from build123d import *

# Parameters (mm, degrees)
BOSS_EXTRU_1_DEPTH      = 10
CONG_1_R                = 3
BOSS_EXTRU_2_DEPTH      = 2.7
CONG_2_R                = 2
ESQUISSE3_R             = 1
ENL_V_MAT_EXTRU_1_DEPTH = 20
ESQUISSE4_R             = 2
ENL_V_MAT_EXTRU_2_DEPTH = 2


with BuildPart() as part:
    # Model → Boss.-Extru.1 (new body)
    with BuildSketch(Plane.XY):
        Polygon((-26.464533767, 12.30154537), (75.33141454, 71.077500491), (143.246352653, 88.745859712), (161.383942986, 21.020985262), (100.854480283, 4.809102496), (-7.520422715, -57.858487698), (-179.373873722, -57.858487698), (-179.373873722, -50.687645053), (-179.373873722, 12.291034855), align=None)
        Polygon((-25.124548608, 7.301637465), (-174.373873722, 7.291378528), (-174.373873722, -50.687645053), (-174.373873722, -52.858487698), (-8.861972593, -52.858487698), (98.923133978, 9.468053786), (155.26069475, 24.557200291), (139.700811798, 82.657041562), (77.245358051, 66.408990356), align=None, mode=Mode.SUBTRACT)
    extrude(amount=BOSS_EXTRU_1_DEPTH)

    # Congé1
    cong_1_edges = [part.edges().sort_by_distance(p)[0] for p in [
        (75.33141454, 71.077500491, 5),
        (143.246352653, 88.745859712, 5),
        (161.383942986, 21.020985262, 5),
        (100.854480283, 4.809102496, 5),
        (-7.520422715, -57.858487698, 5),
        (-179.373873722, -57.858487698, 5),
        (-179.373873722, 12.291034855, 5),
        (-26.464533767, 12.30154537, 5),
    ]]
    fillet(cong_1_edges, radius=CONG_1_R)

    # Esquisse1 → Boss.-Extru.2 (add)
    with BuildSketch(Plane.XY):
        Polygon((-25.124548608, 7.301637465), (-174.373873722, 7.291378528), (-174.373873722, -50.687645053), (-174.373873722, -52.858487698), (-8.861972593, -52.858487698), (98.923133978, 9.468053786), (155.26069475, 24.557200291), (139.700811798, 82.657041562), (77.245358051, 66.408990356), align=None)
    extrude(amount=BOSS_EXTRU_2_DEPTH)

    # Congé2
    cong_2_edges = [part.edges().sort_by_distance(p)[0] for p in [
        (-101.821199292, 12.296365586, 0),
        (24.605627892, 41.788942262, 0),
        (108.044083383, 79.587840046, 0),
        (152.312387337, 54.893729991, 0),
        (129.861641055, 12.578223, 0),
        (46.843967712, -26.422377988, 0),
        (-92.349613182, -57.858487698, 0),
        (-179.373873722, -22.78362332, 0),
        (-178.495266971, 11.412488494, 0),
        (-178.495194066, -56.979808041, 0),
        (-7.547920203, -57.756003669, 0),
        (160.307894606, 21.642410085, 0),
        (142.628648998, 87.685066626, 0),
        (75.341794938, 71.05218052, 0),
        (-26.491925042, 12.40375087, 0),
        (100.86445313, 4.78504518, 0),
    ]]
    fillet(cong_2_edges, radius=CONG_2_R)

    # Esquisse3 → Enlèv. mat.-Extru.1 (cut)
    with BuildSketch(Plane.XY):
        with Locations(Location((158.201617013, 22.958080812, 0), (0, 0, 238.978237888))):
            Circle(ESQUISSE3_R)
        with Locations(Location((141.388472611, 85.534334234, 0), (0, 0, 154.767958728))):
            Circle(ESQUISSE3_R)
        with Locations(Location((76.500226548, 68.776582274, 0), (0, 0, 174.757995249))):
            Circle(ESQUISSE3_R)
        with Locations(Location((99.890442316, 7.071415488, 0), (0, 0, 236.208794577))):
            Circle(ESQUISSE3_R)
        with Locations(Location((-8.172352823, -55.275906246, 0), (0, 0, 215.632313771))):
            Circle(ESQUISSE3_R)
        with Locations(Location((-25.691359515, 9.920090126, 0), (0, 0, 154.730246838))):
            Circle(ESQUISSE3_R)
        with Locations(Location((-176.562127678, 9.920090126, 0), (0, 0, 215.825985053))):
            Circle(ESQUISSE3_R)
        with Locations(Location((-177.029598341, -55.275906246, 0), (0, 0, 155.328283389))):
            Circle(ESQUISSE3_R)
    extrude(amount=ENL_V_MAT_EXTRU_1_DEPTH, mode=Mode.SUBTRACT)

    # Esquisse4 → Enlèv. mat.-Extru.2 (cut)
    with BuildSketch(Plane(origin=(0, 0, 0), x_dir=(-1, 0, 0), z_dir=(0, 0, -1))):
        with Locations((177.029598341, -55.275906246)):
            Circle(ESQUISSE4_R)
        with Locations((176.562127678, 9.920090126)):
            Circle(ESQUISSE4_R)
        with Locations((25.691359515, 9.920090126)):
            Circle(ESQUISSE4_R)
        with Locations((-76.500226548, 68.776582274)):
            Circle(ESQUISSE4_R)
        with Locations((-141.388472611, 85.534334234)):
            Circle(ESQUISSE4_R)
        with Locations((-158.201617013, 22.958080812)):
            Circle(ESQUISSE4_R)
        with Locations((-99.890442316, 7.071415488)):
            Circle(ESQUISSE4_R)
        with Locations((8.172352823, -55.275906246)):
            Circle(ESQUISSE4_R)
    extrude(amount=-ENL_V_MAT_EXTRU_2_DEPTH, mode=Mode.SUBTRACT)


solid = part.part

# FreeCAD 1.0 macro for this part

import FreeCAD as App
import Part
import Sketcher
from FreeCAD import Vector
Q = App.Units.Quantity


def edges_at(feature, points):
    """Names of the edges that pass closest to the given points."""
    edges = feature.Shape.Edges
    near = lambda p: min(range(len(edges)), key=lambda i: edges[i].distToShape(Part.Vertex(*p))[0])
    return sorted({f"Edge{near(p) + 1}" for p in points})

doc = App.newDocument("Part")
params = doc.addObject("Spreadsheet::Sheet", "Params")
for row, (alias, value) in enumerate([
    ("pad1_length", "10 mm"),
    ("fillet_radius", "3 mm"),
    ("pad2_length", "2.7 mm"),
    ("fillet2_radius", "2 mm"),
    ("sketch3_diameter", "2 mm"),
    ("pocket1_length", "20 mm"),
    ("sketch4_diameter", "4 mm"),
    ("pocket2_length", "2 mm"),
], start=1):
    params.set(f"A{row}", alias)
    params.set(f"B{row}", "=" + value)
    params.setAlias(f"B{row}", alias)

body = doc.addObject("PartDesign::Body", "Body")

# Sketch on XY plane
sketch1 = doc.addObject("Sketcher::SketchObject", "Sketch")
body.addObject(sketch1)
sketch1.AttachmentSupport = (doc.XY_Plane, [""])
sketch1.MapMode = "FlatFace"
sketch1.addGeometry(Part.LineSegment(Vector(75, 71, 0), Vector(-26, 12, 0)), False)
sketch1.addGeometry(Part.LineSegment(Vector(-26, 12, 0), Vector(-179, 12, 0)), False)
sketch1.addGeometry(Part.LineSegment(Vector(-179, 12, 0), Vector(-179, -58, 0)), False)
sketch1.addGeometry(Part.LineSegment(Vector(-179, -58, 0), Vector(-8, -58, 0)), False)
sketch1.addGeometry(Part.LineSegment(Vector(-8, -58, 0), Vector(101, 5, 0)), False)
sketch1.addGeometry(Part.LineSegment(Vector(101, 5, 0), Vector(161, 21, 0)), False)
sketch1.addGeometry(Part.LineSegment(Vector(161, 21, 0), Vector(143, 89, 0)), False)
sketch1.addGeometry(Part.LineSegment(Vector(143, 89, 0), Vector(75, 71, 0)), False)
sketch1.addGeometry(Part.LineSegment(Vector(-25, 7, 0), Vector(77, 66, 0)), False)
sketch1.addGeometry(Part.LineSegment(Vector(77, 66, 0), Vector(140, 83, 0)), False)
sketch1.addGeometry(Part.LineSegment(Vector(140, 83, 0), Vector(155, 25, 0)), False)
sketch1.addGeometry(Part.LineSegment(Vector(155, 25, 0), Vector(99, 9, 0)), False)
sketch1.addGeometry(Part.LineSegment(Vector(99, 9, 0), Vector(-9, -53, 0)), False)
sketch1.addGeometry(Part.LineSegment(Vector(-9, -53, 0), Vector(-174, -53, 0)), False)
sketch1.addGeometry(Part.LineSegment(Vector(-174, -53, 0), Vector(-174, 7, 0)), False)
sketch1.addGeometry(Part.LineSegment(Vector(-174, 7, 0), Vector(-25, 7, 0)), False)
sketch1.addConstraint(Sketcher.Constraint("Coincident", 0, 2, 1, 1))
sketch1.addConstraint(Sketcher.Constraint("Coincident", 1, 2, 2, 1))
sketch1.addConstraint(Sketcher.Constraint("Coincident", 2, 2, 3, 1))
sketch1.addConstraint(Sketcher.Constraint("Coincident", 3, 2, 4, 1))
sketch1.addConstraint(Sketcher.Constraint("Coincident", 4, 2, 5, 1))
sketch1.addConstraint(Sketcher.Constraint("Coincident", 5, 2, 6, 1))
sketch1.addConstraint(Sketcher.Constraint("Coincident", 6, 2, 7, 1))
sketch1.addConstraint(Sketcher.Constraint("Coincident", 7, 2, 0, 1))
sketch1.addConstraint(Sketcher.Constraint("Coincident", 8, 2, 9, 1))
sketch1.addConstraint(Sketcher.Constraint("Coincident", 9, 2, 10, 1))
sketch1.addConstraint(Sketcher.Constraint("Coincident", 10, 2, 11, 1))
sketch1.addConstraint(Sketcher.Constraint("Coincident", 11, 2, 12, 1))
sketch1.addConstraint(Sketcher.Constraint("Coincident", 12, 2, 13, 1))
sketch1.addConstraint(Sketcher.Constraint("Coincident", 13, 2, 14, 1))
sketch1.addConstraint(Sketcher.Constraint("Coincident", 14, 2, 15, 1))
sketch1.addConstraint(Sketcher.Constraint("Coincident", 15, 2, 8, 1))
sketch1.addConstraint(Sketcher.Constraint("Vertical", 2))
sketch1.addConstraint(Sketcher.Constraint("Horizontal", 3))
sketch1.addConstraint(Sketcher.Constraint("Horizontal", 13))
sketch1.addConstraint(Sketcher.Constraint("Vertical", 14))
sketch1.addConstraint(Sketcher.Constraint("Parallel", 0, 8))
sketch1.addConstraint(Sketcher.Constraint("Parallel", 7, 9))
sketch1.addConstraint(Sketcher.Constraint("Parallel", 6, 10))
sketch1.addConstraint(Sketcher.Constraint("Parallel", 5, 11))
sketch1.addConstraint(Sketcher.Constraint("Parallel", 4, 12))
sketch1.addConstraint(Sketcher.Constraint("Parallel", 1, 15))
sketch1.addConstraint(Sketcher.Constraint("DistanceY", 3, 2, 12, 2, Q("5 mm")))
sketch1.addConstraint(Sketcher.Constraint("DistanceX", 2, 2, 13, 2, Q("5 mm")))
sketch1.addConstraint(Sketcher.Constraint("DistanceX", 13, 2, 13, 1, Q("165.511901 mm")))
sketch1.addConstraint(Sketcher.Constraint("DistanceX", 3, 1, 3, 2, Q("171.853451 mm")))
sketch1.addConstraint(Sketcher.Constraint("DistanceY", -1, 1, 7, 2, Q("71.0775 mm")))
sketch1.addConstraint(Sketcher.Constraint("DistanceY", -1, 1, 10, 2, Q("24.5572 mm")))
sketch1.addConstraint(Sketcher.Constraint("Distance", 1, Q("152.90934 mm")))
sketch1.addConstraint(Sketcher.Constraint("Distance", 6, Q("70.11156 mm")))
sketch1.addConstraint(Sketcher.Constraint("Distance", 10, Q("60.147332 mm")))
sketch1.addConstraint(Sketcher.Constraint("Distance", 12, Q("124.507939 mm")))
sketch1.addConstraint(Sketcher.Constraint("DistanceY", 2, 2, 2, 1, Q("70.149523 mm")))
sketch1.addConstraint(Sketcher.Constraint("DistanceY", 14, 1, 14, 2, Q("60.149866 mm")))
sketch1.addConstraint(Sketcher.Constraint("DistanceX", -1, 1, 4, 2, Q("100.85448 mm")))
sketch1.addConstraint(Sketcher.Constraint("DistanceY", -1, 1, 6, 2, Q("88.74586 mm")))
sketch1.addConstraint(Sketcher.Constraint("DistanceX", -1, 1, 8, 2, Q("77.245358 mm")))
sketch1.addConstraint(Sketcher.Constraint("DistanceY", -1, 1, 8, 2, Q("66.40899 mm")))
sketch1.addConstraint(Sketcher.Constraint("DistanceX", -1, 1, 9, 2, Q("139.700812 mm")))
sketch1.addConstraint(Sketcher.Constraint("DistanceY", -1, 1, 9, 2, Q("82.657042 mm")))
sketch1.addConstraint(Sketcher.Constraint("DistanceY", -1, 1, 14, 2, Q("7.291379 mm")))
sketch1.addConstraint(Sketcher.Constraint("DistanceX", 15, 2, -1, 1, Q("25.124549 mm")))
sketch1.addConstraint(Sketcher.Constraint("DistanceY", 1, 2, 0, 2, Q("0.010511 mm")))
sketch1.addConstraint(Sketcher.Constraint("DistanceY", 3, 2, 4, 2, Q("62.66759 mm")))
pad1 = doc.addObject("PartDesign::Pad", "Pad")
body.addObject(pad1)
pad1.Profile = sketch1
pad1.setExpression("Length", "Params.pad1_length")
doc.recompute()

fillet = doc.addObject("PartDesign::Fillet", "Fillet")
body.addObject(fillet)
fillet.Base = (pad1, edges_at(pad1, [
    (75.331, 71.078, 5),
    (143.246, 88.746, 5),
    (161.384, 21.021, 5),
    (100.854, 4.809, 5),
    (-7.52, -57.858, 5),
    (-179.374, -57.858, 5),
    (-179.374, 12.291, 5),
    (-26.465, 12.302, 5),
]))
fillet.setExpression("Radius", "Params.fillet_radius")

# Sketch on XY plane
sketch2 = doc.addObject("Sketcher::SketchObject", "Sketch001")
body.addObject(sketch2)
sketch2.AttachmentSupport = (doc.XY_Plane, [""])
sketch2.MapMode = "FlatFace"
sketch2.addGeometry(Part.LineSegment(Vector(-25, 7, 0), Vector(-174, 7, 0)), False)
sketch2.addGeometry(Part.LineSegment(Vector(-174, 7, 0), Vector(-174, -53, 0)), False)
sketch2.addGeometry(Part.LineSegment(Vector(-174, -53, 0), Vector(-9, -53, 0)), False)
sketch2.addGeometry(Part.LineSegment(Vector(-9, -53, 0), Vector(99, 9, 0)), False)
sketch2.addGeometry(Part.LineSegment(Vector(99, 9, 0), Vector(155, 25, 0)), False)
sketch2.addGeometry(Part.LineSegment(Vector(155, 25, 0), Vector(140, 83, 0)), False)
sketch2.addGeometry(Part.LineSegment(Vector(140, 83, 0), Vector(77, 66, 0)), False)
sketch2.addGeometry(Part.LineSegment(Vector(77, 66, 0), Vector(-25, 7, 0)), False)
sketch2.addConstraint(Sketcher.Constraint("Coincident", 0, 2, 1, 1))
sketch2.addConstraint(Sketcher.Constraint("Coincident", 1, 2, 2, 1))
sketch2.addConstraint(Sketcher.Constraint("Coincident", 2, 2, 3, 1))
sketch2.addConstraint(Sketcher.Constraint("Coincident", 3, 2, 4, 1))
sketch2.addConstraint(Sketcher.Constraint("Coincident", 4, 2, 5, 1))
sketch2.addConstraint(Sketcher.Constraint("Coincident", 5, 2, 6, 1))
sketch2.addConstraint(Sketcher.Constraint("Coincident", 6, 2, 7, 1))
sketch2.addConstraint(Sketcher.Constraint("Coincident", 7, 2, 0, 1))
sketch2.addConstraint(Sketcher.Constraint("Vertical", 1))
sketch2.addConstraint(Sketcher.Constraint("Horizontal", 2))
sketch2.addConstraint(Sketcher.Constraint("DistanceX", 2, 1, 2, 2, Q("165.511901 mm")))
sketch2.addConstraint(Sketcher.Constraint("DistanceY", -1, 1, 4, 2, Q("24.5572 mm")))
sketch2.addConstraint(Sketcher.Constraint("Distance", 3, Q("124.507939 mm")))
sketch2.addConstraint(Sketcher.Constraint("Distance", 5, Q("60.147332 mm")))
sketch2.addConstraint(Sketcher.Constraint("DistanceY", 1, 2, 1, 1, Q("60.149866 mm")))
sketch2.addConstraint(Sketcher.Constraint("DistanceY", -1, 1, 0, 2, Q("7.291379 mm")))
sketch2.addConstraint(Sketcher.Constraint("DistanceX", -1, 1, 5, 2, Q("139.700812 mm")))
sketch2.addConstraint(Sketcher.Constraint("DistanceY", -1, 1, 5, 2, Q("82.657042 mm")))
sketch2.addConstraint(Sketcher.Constraint("DistanceX", -1, 1, 6, 2, Q("77.245358 mm")))
sketch2.addConstraint(Sketcher.Constraint("DistanceY", -1, 1, 6, 2, Q("66.40899 mm")))
sketch2.addConstraint(Sketcher.Constraint("DistanceX", 7, 2, -1, 1, Q("25.124549 mm")))
sketch2.addConstraint(Sketcher.Constraint("DistanceY", 2, 2, 3, 2, Q("62.326541 mm")))
sketch2.addConstraint(Sketcher.Constraint("DistanceX", 3, 2, 4, 2, Q("56.337561 mm")))
sketch2.addConstraint(Sketcher.Constraint("DistanceY", 0, 2, 7, 2, Q("0.010259 mm")))
pad2 = doc.addObject("PartDesign::Pad", "Pad001")
body.addObject(pad2)
pad2.Profile = sketch2
pad2.setExpression("Length", "Params.pad2_length")
doc.recompute()

fillet2 = doc.addObject("PartDesign::Fillet", "Fillet001")
body.addObject(fillet2)
fillet2.Base = (pad2, edges_at(pad2, [
    (-101.821, 12.296, 0),
    (24.606, 41.789, 0),
    (108.044, 79.588, 0),
    (152.312, 54.894, 0),
    (129.862, 12.578, 0),
    (46.844, -26.422, 0),
    (-92.35, -57.858, 0),
    (-179.374, -22.784, 0),
    (-178.495, 11.412, 0),
    (-178.495, -56.98, 0),
    (-7.548, -57.756, 0),
    (160.308, 21.642, 0),
    (142.629, 87.685, 0),
    (75.342, 71.052, 0),
    (-26.492, 12.404, 0),
    (100.864, 4.785, 0),
]))
fillet2.setExpression("Radius", "Params.fillet2_radius")

# Sketch on XY plane
sketch3 = doc.addObject("Sketcher::SketchObject", "Sketch002")
body.addObject(sketch3)
sketch3.AttachmentSupport = (doc.XY_Plane, [""])
sketch3.MapMode = "FlatFace"
sketch3.addGeometry(Part.Circle(Vector(158.2, 23, 0), Vector(0, 0, 1), 1), False)
sketch3.addGeometry(Part.Circle(Vector(141.4, 85.5, 0), Vector(0, 0, 1), 1), False)
sketch3.addGeometry(Part.Circle(Vector(76.5, 68.8, 0), Vector(0, 0, 1), 1), False)
sketch3.addGeometry(Part.Circle(Vector(99.9, 7.1, 0), Vector(0, 0, 1), 1), False)
sketch3.addGeometry(Part.Circle(Vector(-8.2, -55.3, 0), Vector(0, 0, 1), 1), False)
sketch3.addGeometry(Part.Circle(Vector(-25.7, 9.9, 0), Vector(0, 0, 1), 1), False)
sketch3.addGeometry(Part.Circle(Vector(-176.6, 9.9, 0), Vector(0, 0, 1), 1), False)
sketch3.addGeometry(Part.Circle(Vector(-177, -55.3, 0), Vector(0, 0, 1), 1), False)
sketch3.addConstraint(Sketcher.Constraint("Equal", 0, 1))
sketch3.addConstraint(Sketcher.Constraint("Equal", 1, 2))
sketch3.addConstraint(Sketcher.Constraint("Equal", 2, 3))
sketch3.addConstraint(Sketcher.Constraint("Equal", 3, 4))
sketch3.addConstraint(Sketcher.Constraint("Equal", 4, 5))
sketch3.addConstraint(Sketcher.Constraint("Equal", 5, 6))
sketch3.addConstraint(Sketcher.Constraint("Equal", 6, 7))
sketch3.addConstraint(Sketcher.Constraint("Horizontal", 5, 3, 6, 3))
sketch3.addConstraint(Sketcher.Constraint("Horizontal", 4, 3, 7, 3))
sketch3.addConstraint(Sketcher.Constraint("Diameter", 0, Q("2 mm")))
sketch3.addConstraint(Sketcher.Constraint("DistanceX", 7, 3, -1, 1, Q("177.029598 mm")))
sketch3.addConstraint(Sketcher.Constraint("DistanceY", 0, 3, 2, 3, Q("45.818501 mm")))
sketch3.addConstraint(Sketcher.Constraint("DistanceX", 5, 3, 3, 3, Q("125.581802 mm")))
sketch3.addConstraint(Sketcher.Constraint("DistanceX", 6, 3, 1, 3, Q("317.9506 mm")))
sketch3.addConstraint(Sketcher.Constraint("DistanceY", -1, 1, 0, 3, Q("22.958081 mm")))
sketch3.addConstraint(Sketcher.Constraint("DistanceX", 5, 3, -1, 1, Q("25.69136 mm")))
sketch3.addConstraint(Sketcher.Constraint("DistanceY", -1, 1, 5, 3, Q("9.92009 mm")))
sketch3.addConstraint(Sketcher.Constraint("DistanceY", 2, 3, 1, 3, Q("16.757752 mm")))
sketch3.addConstraint(Sketcher.Constraint("DistanceX", 2, 3, 0, 3, Q("81.70139 mm")))
sketch3.addConstraint(Sketcher.Constraint("DistanceX", 3, 3, 1, 3, Q("41.49803 mm")))
sketch3.addConstraint(Sketcher.Constraint("DistanceY", 3, 3, 1, 3, Q("78.462919 mm")))
sketch3.addConstraint(Sketcher.Constraint("DistanceY", 4, 3, 3, 3, Q("62.347322 mm")))
sketch3.addConstraint(Sketcher.Constraint("DistanceX", 4, 3, 2, 3, Q("84.672579 mm")))
sketch3.addConstraint(Sketcher.Constraint("DistanceX", -1, 1, 0, 3, Q("158.201617 mm")))
sketch3.setExpression("Constraints[9]", "Params.sketch3_diameter")
pocket1 = doc.addObject("PartDesign::Pocket", "Pocket")
body.addObject(pocket1)
pocket1.Profile = sketch3
pocket1.setExpression("Length", "Params.pocket1_length")
pocket1.Reversed = True

# Sketch on XY plane
sketch4 = doc.addObject("Sketcher::SketchObject", "Sketch003")
body.addObject(sketch4)
sketch4.AttachmentSupport = (doc.XY_Plane, [""])
sketch4.MapMode = "FlatFace"
sketch4.addGeometry(Part.Circle(Vector(-177, -55.3, 0), Vector(0, 0, 1), 2), False)
sketch4.addGeometry(Part.Circle(Vector(-176.6, 9.9, 0), Vector(0, 0, 1), 2), False)
sketch4.addGeometry(Part.Circle(Vector(-25.7, 9.9, 0), Vector(0, 0, 1), 2), False)
sketch4.addGeometry(Part.Circle(Vector(76.5, 68.8, 0), Vector(0, 0, 1), 2), False)
sketch4.addGeometry(Part.Circle(Vector(141.4, 85.5, 0), Vector(0, 0, 1), 2), False)
sketch4.addGeometry(Part.Circle(Vector(158.2, 23, 0), Vector(0, 0, 1), 2), False)
sketch4.addGeometry(Part.Circle(Vector(99.9, 7.1, 0), Vector(0, 0, 1), 2), False)
sketch4.addGeometry(Part.Circle(Vector(-8.2, -55.3, 0), Vector(0, 0, 1), 2), False)
sketch4.addConstraint(Sketcher.Constraint("Equal", 0, 1))
sketch4.addConstraint(Sketcher.Constraint("Equal", 1, 2))
sketch4.addConstraint(Sketcher.Constraint("Equal", 2, 3))
sketch4.addConstraint(Sketcher.Constraint("Equal", 3, 4))
sketch4.addConstraint(Sketcher.Constraint("Equal", 4, 5))
sketch4.addConstraint(Sketcher.Constraint("Equal", 5, 6))
sketch4.addConstraint(Sketcher.Constraint("Equal", 6, 7))
sketch4.addConstraint(Sketcher.Constraint("Horizontal", 1, 3, 2, 3))
sketch4.addConstraint(Sketcher.Constraint("Horizontal", 0, 3, 7, 3))
sketch4.addConstraint(Sketcher.Constraint("Diameter", 0, Q("4 mm")))
sketch4.addConstraint(Sketcher.Constraint("DistanceX", 0, 3, -1, 1, Q("177.029598 mm")))
sketch4.addConstraint(Sketcher.Constraint("DistanceX", 1, 3, 4, 3, Q("317.9506 mm")))
sketch4.addConstraint(Sketcher.Constraint("DistanceY", 5, 3, 3, 3, Q("45.818501 mm")))
sketch4.addConstraint(Sketcher.Constraint("DistanceX", 2, 3, 6, 3, Q("125.581802 mm")))
sketch4.addConstraint(Sketcher.Constraint("DistanceY", -1, 1, 1, 3, Q("9.92009 mm")))
sketch4.addConstraint(Sketcher.Constraint("DistanceX", 2, 3, -1, 1, Q("25.69136 mm")))
sketch4.addConstraint(Sketcher.Constraint("DistanceY", -1, 1, 5, 3, Q("22.958081 mm")))
sketch4.addConstraint(Sketcher.Constraint("DistanceX", 0, 3, 1, 3, Q("0.467471 mm")))
sketch4.addConstraint(Sketcher.Constraint("DistanceY", 0, 3, 3, 3, Q("124.052489 mm")))
sketch4.addConstraint(Sketcher.Constraint("DistanceY", 3, 3, 4, 3, Q("16.757752 mm")))
sketch4.addConstraint(Sketcher.Constraint("DistanceX", 3, 3, 5, 3, Q("81.70139 mm")))
sketch4.addConstraint(Sketcher.Constraint("DistanceY", 6, 3, 4, 3, Q("78.462919 mm")))
sketch4.addConstraint(Sketcher.Constraint("DistanceX", 7, 3, 3, 3, Q("84.672579 mm")))
sketch4.addConstraint(Sketcher.Constraint("DistanceX", -1, 1, 3, 3, Q("76.500227 mm")))
sketch4.setExpression("Constraints[9]", "Params.sketch4_diameter")
pocket2 = doc.addObject("PartDesign::Pocket", "Pocket001")
body.addObject(pocket2)
pocket2.Profile = sketch4
pocket2.setExpression("Length", "Params.pocket2_length")
pocket2.Reversed = True

doc.recompute()
